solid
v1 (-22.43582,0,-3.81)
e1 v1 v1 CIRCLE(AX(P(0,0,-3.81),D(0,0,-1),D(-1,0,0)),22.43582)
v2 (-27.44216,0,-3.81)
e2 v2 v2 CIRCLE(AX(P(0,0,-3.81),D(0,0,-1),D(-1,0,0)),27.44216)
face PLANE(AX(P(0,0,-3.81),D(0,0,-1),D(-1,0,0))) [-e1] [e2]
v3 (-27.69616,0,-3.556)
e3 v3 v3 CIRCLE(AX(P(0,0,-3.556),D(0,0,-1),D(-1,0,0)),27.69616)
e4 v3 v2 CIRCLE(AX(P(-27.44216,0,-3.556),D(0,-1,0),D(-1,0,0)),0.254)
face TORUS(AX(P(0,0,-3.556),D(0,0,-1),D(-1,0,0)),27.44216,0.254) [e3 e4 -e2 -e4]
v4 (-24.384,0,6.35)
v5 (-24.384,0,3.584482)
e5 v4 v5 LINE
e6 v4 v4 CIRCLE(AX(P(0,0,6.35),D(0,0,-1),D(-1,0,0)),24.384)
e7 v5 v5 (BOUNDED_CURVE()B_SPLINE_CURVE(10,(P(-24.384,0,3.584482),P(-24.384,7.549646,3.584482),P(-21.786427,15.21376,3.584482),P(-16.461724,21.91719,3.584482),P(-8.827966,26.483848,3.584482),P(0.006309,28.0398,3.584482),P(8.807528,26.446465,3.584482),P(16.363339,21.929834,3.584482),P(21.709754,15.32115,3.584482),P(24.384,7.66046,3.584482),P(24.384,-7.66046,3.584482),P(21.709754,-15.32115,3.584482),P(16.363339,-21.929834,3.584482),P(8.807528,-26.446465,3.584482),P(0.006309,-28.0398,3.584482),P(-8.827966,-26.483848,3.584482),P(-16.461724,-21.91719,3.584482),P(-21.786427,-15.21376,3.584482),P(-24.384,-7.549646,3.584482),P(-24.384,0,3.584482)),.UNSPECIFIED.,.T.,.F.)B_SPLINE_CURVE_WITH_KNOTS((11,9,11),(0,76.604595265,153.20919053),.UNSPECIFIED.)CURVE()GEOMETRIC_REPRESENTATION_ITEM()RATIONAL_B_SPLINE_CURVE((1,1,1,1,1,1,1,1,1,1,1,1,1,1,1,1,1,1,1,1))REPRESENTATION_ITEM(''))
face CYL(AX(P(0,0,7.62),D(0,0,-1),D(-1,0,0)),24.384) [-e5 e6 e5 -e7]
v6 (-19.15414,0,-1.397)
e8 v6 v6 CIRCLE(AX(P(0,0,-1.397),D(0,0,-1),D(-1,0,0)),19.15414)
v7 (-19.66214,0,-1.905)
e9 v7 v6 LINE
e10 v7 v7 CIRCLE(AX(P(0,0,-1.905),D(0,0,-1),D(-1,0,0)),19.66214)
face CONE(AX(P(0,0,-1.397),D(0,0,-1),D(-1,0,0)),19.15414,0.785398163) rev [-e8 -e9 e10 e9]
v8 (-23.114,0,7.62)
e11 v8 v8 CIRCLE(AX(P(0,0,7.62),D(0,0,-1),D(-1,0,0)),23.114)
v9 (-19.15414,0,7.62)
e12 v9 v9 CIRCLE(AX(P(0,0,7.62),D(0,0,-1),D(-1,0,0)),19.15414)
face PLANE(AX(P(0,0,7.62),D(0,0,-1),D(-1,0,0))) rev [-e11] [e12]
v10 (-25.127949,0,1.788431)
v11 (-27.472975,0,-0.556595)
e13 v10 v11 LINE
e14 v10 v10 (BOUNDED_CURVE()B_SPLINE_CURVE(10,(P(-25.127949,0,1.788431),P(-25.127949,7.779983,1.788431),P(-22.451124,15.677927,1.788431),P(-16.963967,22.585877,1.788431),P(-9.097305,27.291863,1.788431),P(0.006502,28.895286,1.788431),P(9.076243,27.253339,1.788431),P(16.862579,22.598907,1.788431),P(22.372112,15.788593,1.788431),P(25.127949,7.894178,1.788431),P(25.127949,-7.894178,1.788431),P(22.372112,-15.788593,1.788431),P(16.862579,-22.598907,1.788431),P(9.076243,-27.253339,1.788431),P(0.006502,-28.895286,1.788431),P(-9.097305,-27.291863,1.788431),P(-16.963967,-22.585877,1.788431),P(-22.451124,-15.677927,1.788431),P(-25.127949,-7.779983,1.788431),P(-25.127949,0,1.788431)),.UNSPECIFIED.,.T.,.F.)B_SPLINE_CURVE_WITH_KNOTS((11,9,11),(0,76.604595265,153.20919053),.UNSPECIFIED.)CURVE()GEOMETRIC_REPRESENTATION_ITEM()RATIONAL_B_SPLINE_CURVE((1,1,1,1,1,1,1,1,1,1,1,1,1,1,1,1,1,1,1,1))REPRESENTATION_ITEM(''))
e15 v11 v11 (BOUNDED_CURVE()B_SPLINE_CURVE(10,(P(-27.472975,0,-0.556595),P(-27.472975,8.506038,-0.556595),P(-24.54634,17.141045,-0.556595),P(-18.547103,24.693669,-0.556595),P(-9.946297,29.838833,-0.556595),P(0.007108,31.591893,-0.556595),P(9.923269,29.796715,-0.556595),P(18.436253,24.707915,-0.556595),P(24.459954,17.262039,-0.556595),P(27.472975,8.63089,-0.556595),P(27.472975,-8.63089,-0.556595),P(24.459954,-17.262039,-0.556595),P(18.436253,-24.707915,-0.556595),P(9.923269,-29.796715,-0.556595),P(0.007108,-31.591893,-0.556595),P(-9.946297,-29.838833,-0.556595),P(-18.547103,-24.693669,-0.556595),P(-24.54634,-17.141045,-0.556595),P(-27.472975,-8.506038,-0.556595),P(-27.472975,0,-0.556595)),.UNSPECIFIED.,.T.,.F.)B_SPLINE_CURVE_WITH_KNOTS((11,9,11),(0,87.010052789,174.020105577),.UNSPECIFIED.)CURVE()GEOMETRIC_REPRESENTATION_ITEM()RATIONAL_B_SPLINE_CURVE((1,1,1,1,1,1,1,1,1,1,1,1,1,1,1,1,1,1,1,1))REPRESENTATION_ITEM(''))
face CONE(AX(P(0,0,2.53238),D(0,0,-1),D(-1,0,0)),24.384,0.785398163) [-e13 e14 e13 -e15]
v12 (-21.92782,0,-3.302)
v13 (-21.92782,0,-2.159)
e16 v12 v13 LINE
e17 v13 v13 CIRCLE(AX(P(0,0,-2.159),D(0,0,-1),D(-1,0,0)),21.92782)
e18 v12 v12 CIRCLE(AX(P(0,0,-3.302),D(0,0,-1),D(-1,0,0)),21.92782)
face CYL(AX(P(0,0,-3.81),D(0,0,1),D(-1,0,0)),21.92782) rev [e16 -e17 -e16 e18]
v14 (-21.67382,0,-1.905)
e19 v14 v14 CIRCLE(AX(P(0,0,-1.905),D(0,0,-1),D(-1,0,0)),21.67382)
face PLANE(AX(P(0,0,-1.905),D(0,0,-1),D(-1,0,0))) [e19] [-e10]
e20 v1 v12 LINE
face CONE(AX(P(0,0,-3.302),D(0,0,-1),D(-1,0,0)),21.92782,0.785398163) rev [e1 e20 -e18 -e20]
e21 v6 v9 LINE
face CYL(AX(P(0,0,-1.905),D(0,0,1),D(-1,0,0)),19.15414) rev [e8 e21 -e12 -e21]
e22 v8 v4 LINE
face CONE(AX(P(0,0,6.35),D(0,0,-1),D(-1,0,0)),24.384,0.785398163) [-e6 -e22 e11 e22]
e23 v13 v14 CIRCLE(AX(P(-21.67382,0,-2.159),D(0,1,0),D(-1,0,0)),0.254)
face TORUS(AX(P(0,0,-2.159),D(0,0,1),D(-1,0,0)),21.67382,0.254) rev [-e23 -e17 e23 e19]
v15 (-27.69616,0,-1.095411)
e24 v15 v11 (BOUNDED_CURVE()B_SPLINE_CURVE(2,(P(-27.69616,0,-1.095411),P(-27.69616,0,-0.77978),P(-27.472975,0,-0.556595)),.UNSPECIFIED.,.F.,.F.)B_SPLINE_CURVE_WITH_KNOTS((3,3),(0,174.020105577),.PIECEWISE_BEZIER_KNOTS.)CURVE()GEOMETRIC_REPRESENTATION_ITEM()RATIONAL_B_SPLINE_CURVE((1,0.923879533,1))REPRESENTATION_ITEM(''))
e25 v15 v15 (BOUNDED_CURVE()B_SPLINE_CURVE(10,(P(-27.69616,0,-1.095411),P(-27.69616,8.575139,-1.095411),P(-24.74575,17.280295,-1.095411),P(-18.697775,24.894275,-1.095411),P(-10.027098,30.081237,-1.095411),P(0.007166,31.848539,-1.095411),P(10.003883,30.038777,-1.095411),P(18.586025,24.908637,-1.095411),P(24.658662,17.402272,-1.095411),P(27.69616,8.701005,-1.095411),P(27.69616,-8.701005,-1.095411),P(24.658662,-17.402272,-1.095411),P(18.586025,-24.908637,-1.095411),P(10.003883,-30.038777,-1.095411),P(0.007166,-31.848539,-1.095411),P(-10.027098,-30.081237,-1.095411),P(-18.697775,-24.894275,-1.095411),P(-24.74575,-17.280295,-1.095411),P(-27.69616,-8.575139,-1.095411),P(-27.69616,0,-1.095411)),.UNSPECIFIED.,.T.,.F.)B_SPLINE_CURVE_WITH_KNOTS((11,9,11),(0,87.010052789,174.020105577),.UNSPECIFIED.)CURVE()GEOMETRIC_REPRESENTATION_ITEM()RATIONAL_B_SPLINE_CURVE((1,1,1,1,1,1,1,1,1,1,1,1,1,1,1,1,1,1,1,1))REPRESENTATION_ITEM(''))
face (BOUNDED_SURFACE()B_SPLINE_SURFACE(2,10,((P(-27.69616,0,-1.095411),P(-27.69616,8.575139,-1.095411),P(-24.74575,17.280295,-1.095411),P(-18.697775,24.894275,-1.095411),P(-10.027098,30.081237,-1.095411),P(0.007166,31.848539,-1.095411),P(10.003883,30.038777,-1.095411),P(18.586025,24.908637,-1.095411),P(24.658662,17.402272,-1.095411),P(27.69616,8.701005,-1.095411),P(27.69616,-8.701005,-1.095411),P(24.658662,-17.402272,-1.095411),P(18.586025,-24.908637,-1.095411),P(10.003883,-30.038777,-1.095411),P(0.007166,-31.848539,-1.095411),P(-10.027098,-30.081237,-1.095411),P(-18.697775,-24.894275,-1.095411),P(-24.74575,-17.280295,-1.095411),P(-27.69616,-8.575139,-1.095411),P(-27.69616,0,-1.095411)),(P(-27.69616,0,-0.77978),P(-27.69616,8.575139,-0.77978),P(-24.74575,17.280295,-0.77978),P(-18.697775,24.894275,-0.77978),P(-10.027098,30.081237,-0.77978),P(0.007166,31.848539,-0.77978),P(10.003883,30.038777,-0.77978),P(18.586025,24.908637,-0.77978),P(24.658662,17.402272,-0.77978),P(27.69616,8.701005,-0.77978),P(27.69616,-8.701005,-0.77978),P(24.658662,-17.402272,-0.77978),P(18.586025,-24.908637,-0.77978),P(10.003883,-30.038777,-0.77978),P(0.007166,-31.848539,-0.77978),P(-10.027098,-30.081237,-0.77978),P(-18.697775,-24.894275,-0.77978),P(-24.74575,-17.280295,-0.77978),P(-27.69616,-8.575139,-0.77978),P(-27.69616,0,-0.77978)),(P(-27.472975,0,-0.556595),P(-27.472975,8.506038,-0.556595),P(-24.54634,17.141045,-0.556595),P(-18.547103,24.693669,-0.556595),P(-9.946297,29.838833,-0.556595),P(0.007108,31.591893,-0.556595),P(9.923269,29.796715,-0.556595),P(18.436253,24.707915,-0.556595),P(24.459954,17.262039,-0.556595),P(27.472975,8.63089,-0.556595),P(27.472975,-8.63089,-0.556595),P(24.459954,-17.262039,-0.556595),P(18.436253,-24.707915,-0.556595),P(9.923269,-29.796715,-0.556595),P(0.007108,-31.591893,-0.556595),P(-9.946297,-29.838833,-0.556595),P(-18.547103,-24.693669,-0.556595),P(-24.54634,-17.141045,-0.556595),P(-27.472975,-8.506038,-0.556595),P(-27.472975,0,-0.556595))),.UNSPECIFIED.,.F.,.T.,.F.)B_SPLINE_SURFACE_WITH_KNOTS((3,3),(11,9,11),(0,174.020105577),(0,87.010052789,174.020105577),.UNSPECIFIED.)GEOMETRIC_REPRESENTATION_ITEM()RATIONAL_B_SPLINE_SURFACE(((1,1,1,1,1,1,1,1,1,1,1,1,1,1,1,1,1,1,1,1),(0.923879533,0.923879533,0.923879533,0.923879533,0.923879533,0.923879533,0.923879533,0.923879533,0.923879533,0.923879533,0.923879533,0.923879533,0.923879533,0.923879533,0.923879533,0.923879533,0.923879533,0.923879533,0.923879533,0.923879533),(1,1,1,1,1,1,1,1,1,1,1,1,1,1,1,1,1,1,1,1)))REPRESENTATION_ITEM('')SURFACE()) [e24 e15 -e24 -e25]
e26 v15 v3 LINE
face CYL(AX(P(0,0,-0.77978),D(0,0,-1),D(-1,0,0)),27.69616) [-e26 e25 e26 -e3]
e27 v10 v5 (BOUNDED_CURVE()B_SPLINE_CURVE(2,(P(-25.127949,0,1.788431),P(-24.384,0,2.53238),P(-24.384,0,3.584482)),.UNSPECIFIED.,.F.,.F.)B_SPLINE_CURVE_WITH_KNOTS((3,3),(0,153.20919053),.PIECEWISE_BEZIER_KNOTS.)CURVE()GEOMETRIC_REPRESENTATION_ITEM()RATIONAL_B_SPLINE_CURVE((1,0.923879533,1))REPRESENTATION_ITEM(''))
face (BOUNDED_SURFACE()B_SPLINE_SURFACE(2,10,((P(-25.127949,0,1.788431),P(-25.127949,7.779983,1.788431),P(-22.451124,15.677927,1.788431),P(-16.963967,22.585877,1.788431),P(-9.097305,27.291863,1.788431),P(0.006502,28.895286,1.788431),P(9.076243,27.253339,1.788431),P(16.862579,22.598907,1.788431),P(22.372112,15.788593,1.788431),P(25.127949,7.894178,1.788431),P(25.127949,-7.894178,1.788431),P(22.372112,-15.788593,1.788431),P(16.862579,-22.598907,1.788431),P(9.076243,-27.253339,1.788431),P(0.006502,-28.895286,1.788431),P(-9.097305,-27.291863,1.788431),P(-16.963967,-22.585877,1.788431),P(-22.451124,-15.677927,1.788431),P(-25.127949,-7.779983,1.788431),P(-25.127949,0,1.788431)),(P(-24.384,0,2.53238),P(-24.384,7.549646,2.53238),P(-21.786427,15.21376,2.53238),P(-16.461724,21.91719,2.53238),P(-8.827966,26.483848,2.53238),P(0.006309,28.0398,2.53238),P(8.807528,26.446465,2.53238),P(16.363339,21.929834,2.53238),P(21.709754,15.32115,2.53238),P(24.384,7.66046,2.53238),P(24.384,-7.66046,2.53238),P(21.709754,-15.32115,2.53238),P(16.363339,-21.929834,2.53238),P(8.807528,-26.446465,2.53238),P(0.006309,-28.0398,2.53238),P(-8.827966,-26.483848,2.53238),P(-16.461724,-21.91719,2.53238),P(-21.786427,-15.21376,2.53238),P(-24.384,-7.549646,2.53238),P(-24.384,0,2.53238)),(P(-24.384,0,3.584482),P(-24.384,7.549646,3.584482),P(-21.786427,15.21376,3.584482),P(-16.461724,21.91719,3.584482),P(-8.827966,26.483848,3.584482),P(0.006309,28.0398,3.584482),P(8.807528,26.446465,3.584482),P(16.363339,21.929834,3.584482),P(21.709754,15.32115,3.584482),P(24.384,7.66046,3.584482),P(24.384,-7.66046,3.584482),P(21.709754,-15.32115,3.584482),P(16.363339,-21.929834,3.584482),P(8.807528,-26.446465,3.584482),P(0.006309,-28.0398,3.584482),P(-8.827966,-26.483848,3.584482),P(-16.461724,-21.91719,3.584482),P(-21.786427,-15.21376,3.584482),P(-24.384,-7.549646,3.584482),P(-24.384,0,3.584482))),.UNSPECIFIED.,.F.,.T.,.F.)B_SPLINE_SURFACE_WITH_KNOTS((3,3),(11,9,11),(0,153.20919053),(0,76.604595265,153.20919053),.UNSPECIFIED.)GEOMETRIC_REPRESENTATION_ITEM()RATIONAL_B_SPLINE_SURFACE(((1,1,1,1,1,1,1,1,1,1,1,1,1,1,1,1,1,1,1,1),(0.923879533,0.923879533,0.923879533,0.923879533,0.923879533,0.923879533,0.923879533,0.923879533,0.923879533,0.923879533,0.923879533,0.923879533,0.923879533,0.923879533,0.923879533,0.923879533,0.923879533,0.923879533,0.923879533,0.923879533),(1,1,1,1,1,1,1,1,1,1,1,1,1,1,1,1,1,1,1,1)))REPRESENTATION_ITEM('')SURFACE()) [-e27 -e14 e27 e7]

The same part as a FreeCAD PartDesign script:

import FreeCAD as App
import Part
import Sketcher

V = App.Vector
Q = App.Units.Quantity


def edges_at(feature, points):
    """Names of the edges that pass closest to the given points."""
    edges = feature.Shape.Edges
    near = lambda p: min(range(len(edges)), key=lambda i: edges[i].distToShape(Part.Vertex(*p))[0])
    return sorted({f"Edge{near(p) + 1}" for p in points})


def add_polygon(sketch, points):
    """Adds a closed chain of lines whose ends are joined by coincident constraints."""
    first, n = sketch.GeometryCount, len(points)
    for a, b in zip(points, points[1:] + points[:1]):
        sketch.addGeometry(Part.LineSegment(App.Vector(*a, 0), App.Vector(*b, 0)), False)
    for i in range(n):
        sketch.addConstraint(Sketcher.Constraint("Coincident", first + i, 2, first + (i + 1) % n, 1))

doc = App.newDocument("Part")
body = doc.addObject("PartDesign::Body", "Body")

# Sketch on XZ plane
sketch1 = body.newObject("Sketcher::SketchObject", "Sketch")
sketch1.AttachmentSupport = (doc.getObject("XZ_Plane"), [""])
sketch1.MapMode = "FlatFace"
add_polygon(sketch1, [(-27.69616, -0.77978), (-27.69616, -3.81), (-21.92782, -3.81), (-21.92782, -1.905), (-19.15414, -1.905), (-19.15414, 7.62), (-24.384, 7.62), (-24.384, 2.53238)])  # lines 0-7
sketch1.addConstraint([
    Sketcher.Constraint("Vertical", 0),
    Sketcher.Constraint("Horizontal", 1),
    Sketcher.Constraint("Vertical", 2),
    Sketcher.Constraint("Horizontal", 3),
    Sketcher.Constraint("Vertical", 4),
    Sketcher.Constraint("Horizontal", 5),
    Sketcher.Constraint("Vertical", 6),
    Sketcher.Constraint("Angle", 7, Q("-135 deg")),
    Sketcher.Constraint("DistanceY", -1, 1, 4, 2, Q("0.3 in")),
    Sketcher.Constraint("DistanceY", 2, 1, 2, 2, Q("0.075 in")),
    Sketcher.Constraint("DistanceY", 4, 1, 4, 2, Q("0.375 in")),
    Sketcher.Constraint("DistanceX", 5, 2, -1, 1, Q("0.96 in")),
    Sketcher.Constraint("DistanceX", 1, 1, 1, 2, Q("0.2271 in")),
    Sketcher.Constraint("DistanceX", 3, 1, 3, 2, Q("0.1092 in")),
    Sketcher.Constraint("DistanceX", 5, 2, 5, 1, Q("0.2059 in")),
    Sketcher.Constraint("DistanceY", 0, 2, 0, 1, Q("0.1193 in")),
])
revolution = body.newObject("PartDesign::Revolution", "Revolution")
revolution.Profile = sketch1
revolution.ReferenceAxis = (sketch1, ["V_Axis"])
revolution.Angle = 360
doc.recompute()

fillet = body.newObject("PartDesign::Fillet", "Fillet")
fillet.Base = (revolution, edges_at(revolution, [(27.696, 0, -0.78)]))
fillet.Radius = Q("0.03 in")
doc.recompute()

fillet2 = body.newObject("PartDesign::Fillet", "Fillet001")
fillet2.Base = (fillet, edges_at(fillet, [(24.384, 0, 2.532)]))
fillet2.Radius = Q("0.1 in")
doc.recompute()

fillet3 = body.newObject("PartDesign::Fillet", "Fillet002")
fillet3.Base = (fillet2, edges_at(fillet2, [(27.696, 0, -3.81)]))
fillet3.Radius = Q("0.01 in")
doc.recompute()

chamfer = body.newObject("PartDesign::Chamfer", "Chamfer")
chamfer.Base = (fillet3, edges_at(fillet3, [(21.928, 0, -3.81), (19.154, 0, -1.905)]))
chamfer.Size = Q("0.02 in")
doc.recompute()

fillet4 = body.newObject("PartDesign::Fillet", "Fillet003")
fillet4.Base = (chamfer, edges_at(chamfer, [(21.928, 0, -1.905)]))
fillet4.Radius = Q("0.01 in")
doc.recompute()

chamfer2 = body.newObject("PartDesign::Chamfer", "Chamfer001")
chamfer2.Base = (fillet4, edges_at(fillet4, [(24.384, 0, 7.62)]))
chamfer2.Size = Q("0.05 in")

doc.recompute()
